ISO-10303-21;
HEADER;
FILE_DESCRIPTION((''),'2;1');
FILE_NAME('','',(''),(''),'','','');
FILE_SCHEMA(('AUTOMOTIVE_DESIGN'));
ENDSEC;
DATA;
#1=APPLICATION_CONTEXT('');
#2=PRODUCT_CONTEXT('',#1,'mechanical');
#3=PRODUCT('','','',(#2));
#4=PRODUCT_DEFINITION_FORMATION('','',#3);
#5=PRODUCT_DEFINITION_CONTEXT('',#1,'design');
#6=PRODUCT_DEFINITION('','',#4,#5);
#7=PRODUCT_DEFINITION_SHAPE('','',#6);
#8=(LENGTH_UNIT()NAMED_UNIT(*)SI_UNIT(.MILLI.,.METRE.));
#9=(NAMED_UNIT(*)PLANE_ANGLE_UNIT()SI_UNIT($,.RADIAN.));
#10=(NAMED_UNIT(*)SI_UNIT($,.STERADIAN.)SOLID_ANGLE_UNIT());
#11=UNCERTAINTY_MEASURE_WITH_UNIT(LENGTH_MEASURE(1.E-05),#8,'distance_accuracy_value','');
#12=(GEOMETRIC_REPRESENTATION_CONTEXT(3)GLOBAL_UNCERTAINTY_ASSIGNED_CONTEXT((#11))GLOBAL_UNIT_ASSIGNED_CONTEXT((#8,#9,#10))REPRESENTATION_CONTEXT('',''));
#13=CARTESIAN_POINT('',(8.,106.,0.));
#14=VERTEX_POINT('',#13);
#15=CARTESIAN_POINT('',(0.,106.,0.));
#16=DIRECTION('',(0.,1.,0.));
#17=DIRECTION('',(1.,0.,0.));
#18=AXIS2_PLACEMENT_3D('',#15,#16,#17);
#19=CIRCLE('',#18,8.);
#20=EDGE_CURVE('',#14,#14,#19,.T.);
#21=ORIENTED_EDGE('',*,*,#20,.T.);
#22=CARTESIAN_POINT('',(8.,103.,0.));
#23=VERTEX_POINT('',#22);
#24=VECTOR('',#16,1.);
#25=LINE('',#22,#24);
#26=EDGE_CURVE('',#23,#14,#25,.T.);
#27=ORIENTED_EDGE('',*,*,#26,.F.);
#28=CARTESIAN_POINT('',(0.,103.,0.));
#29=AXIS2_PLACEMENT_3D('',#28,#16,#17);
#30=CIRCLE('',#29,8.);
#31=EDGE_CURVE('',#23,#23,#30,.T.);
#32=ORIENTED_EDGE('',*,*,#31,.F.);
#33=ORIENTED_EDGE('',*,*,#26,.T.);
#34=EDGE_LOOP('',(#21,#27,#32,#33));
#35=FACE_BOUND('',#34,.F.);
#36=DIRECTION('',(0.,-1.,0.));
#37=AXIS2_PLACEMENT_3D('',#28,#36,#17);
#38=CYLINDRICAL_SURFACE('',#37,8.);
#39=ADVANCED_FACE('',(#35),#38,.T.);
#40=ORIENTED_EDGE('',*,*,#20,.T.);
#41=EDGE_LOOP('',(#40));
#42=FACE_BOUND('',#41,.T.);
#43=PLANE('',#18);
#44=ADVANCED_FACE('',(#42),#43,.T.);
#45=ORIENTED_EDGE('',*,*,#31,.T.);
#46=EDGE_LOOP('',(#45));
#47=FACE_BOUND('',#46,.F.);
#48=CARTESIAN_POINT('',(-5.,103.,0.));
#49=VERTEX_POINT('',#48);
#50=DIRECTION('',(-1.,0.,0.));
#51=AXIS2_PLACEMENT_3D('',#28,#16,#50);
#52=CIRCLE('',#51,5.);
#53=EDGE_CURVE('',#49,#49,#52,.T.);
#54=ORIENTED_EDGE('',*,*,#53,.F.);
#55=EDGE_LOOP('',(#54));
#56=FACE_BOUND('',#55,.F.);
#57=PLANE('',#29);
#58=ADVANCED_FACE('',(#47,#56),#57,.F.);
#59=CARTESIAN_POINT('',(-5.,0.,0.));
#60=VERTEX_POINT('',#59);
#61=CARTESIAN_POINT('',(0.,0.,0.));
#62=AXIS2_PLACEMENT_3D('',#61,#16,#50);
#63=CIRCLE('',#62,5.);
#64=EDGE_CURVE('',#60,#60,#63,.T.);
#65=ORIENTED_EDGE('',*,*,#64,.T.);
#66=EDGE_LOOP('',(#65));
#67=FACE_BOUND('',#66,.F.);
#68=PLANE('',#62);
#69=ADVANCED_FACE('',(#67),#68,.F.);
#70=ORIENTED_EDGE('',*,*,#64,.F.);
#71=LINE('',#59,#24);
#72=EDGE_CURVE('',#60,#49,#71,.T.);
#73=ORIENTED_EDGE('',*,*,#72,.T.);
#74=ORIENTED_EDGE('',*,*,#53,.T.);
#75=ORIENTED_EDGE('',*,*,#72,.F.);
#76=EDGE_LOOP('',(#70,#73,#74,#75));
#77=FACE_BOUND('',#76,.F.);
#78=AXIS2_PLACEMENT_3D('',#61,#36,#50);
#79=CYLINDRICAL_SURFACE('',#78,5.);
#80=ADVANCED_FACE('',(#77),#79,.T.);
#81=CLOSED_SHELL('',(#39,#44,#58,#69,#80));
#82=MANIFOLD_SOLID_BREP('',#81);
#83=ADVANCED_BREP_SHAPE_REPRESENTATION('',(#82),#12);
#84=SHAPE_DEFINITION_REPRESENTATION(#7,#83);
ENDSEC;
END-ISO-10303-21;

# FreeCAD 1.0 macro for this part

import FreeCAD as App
import Part
import Sketcher
from FreeCAD import Vector
Q = App.Units.Quantity

doc = App.newDocument("Part")
body = doc.addObject("PartDesign::Body", "Body")

# Sketch on XZ plane
sketch1 = body.newObject("Sketcher::SketchObject", "Sketch")
sketch1.AttachmentSupport = (doc.getObject("XZ_Plane"), [""])
sketch1.MapMode = "FlatFace"
sketch1.addGeometry(Part.Circle(Vector(0, 0, 0), Vector(0, 0, 1), 5), False)
sketch1.addConstraint(Sketcher.Constraint("Coincident", 0, 3, -1, 1))
sketch1.addConstraint(Sketcher.Constraint("Diameter", 0, Q("10 mm")))
pad1 = body.newObject("PartDesign::Pad", "Pad")
pad1.Profile = sketch1
pad1.Length = 103
pad1.Reversed = True

# Sketch on XZ plane
sketch2 = body.newObject("Sketcher::SketchObject", "Sketch001")
sketch2.AttachmentSupport = (doc.getObject("XZ_Plane"), [""])
sketch2.MapMode = "FlatFace"
sketch2.AttachmentOffset = App.Placement(Vector(0, 0, -103), App.Rotation())
sketch2.addGeometry(Part.Circle(Vector(0, 0, 0), Vector(0, 0, 1), 8), False)
sketch2.addConstraint(Sketcher.Constraint("Coincident", 0, 3, -1, 1))
sketch2.addConstraint(Sketcher.Constraint("Diameter", 0, Q("16 mm")))
pad2 = body.newObject("PartDesign::Pad", "Pad001")
pad2.Profile = sketch2
pad2.Length = 3
pad2.Reversed = True

doc.recompute()
